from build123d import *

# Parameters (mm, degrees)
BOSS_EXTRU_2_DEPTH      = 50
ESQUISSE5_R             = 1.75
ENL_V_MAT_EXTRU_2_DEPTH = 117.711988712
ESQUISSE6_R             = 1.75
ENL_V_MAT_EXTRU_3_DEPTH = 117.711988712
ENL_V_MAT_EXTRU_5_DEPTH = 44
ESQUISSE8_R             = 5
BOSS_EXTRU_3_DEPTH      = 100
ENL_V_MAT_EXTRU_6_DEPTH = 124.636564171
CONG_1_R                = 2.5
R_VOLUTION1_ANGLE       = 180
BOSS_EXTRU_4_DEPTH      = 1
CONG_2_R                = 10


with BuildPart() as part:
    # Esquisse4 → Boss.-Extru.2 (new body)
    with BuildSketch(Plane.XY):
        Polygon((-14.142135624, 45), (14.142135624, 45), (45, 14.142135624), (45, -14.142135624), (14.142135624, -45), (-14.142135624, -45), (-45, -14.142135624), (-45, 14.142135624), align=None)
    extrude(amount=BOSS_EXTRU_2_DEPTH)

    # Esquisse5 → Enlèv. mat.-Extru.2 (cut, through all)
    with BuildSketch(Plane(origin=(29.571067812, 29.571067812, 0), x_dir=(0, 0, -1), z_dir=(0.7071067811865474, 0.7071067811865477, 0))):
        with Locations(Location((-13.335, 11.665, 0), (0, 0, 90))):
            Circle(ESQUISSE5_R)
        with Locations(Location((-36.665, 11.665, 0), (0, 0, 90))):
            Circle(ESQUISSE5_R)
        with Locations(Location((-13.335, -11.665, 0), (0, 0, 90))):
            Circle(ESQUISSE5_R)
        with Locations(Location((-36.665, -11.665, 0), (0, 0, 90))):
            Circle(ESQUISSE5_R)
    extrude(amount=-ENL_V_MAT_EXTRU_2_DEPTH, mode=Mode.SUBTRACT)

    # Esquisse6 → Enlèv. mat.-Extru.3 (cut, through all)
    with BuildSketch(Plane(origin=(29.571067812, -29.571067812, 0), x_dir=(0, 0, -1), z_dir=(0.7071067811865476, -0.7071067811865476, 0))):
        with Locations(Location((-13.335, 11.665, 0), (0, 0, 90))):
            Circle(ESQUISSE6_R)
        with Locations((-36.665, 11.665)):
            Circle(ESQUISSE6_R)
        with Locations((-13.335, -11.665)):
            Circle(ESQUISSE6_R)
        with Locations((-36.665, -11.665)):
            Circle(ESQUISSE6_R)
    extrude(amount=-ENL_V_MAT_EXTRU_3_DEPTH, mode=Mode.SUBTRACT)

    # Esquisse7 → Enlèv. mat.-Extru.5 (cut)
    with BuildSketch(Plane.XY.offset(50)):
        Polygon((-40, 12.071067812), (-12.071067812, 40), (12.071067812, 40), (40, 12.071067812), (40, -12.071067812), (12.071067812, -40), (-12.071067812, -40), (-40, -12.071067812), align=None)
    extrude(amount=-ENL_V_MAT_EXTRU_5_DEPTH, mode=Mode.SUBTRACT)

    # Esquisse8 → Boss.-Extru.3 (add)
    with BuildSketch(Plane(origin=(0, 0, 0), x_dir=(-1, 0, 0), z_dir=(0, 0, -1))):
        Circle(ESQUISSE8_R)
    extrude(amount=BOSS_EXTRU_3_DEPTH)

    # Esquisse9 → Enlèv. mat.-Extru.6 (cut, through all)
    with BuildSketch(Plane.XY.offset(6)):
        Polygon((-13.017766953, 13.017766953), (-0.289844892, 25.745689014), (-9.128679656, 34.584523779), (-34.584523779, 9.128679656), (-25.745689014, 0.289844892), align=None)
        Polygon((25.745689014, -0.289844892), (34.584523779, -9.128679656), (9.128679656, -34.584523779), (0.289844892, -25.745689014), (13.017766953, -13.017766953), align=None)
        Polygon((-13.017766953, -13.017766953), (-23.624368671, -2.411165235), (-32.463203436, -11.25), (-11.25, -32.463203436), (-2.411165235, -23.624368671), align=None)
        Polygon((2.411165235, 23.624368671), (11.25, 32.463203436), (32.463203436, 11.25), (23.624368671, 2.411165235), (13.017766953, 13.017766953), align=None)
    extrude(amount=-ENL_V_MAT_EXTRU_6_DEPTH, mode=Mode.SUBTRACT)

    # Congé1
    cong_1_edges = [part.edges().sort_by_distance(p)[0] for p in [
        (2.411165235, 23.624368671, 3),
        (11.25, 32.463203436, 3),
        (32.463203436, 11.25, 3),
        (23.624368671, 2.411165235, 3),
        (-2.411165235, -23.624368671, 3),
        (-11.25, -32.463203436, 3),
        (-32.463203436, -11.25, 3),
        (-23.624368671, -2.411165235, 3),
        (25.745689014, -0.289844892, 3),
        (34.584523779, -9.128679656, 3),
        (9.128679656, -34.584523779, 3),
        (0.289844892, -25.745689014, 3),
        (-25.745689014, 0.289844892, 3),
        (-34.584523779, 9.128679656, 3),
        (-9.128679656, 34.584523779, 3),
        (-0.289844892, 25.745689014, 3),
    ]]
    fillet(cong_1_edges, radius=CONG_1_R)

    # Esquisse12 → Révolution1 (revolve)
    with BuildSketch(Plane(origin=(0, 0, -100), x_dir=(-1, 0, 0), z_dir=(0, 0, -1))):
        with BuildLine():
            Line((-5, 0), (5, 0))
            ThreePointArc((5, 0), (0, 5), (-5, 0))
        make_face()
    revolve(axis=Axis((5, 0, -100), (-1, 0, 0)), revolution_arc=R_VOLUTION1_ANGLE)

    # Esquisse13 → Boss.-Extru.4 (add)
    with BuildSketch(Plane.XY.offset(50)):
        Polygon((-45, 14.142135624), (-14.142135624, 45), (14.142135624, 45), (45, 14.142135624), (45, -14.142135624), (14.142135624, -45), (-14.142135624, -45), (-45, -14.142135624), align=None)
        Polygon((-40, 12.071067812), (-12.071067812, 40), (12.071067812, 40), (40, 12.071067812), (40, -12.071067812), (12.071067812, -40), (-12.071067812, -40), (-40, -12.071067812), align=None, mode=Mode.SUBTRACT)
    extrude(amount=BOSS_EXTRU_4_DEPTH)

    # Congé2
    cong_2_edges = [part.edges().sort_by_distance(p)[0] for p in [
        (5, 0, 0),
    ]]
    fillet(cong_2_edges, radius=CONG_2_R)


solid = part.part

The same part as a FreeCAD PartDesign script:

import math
import FreeCAD as App
import Part
import Sketcher
from FreeCAD import Vector
Q = App.Units.Quantity


def edges_at(feature, points):
    """Names of the edges that pass closest to the given points."""
    edges = feature.Shape.Edges
    near = lambda p: min(range(len(edges)), key=lambda i: edges[i].distToShape(Part.Vertex(*p))[0])
    return sorted({f"Edge{near(p) + 1}" for p in points})


def add_polygon(sketch, points):
    """Adds a closed chain of lines whose ends are joined by coincident constraints."""
    first, n = sketch.GeometryCount, len(points)
    for a, b in zip(points, points[1:] + points[:1]):
        sketch.addGeometry(Part.LineSegment(App.Vector(*a, 0), App.Vector(*b, 0)), False)
    for i in range(n):
        sketch.addConstraint(Sketcher.Constraint("Coincident", first + i, 2, first + (i + 1) % n, 1))

doc = App.newDocument("Part")
params = doc.addObject("Spreadsheet::Sheet", "Params")
for row, (alias, value) in enumerate([
    ("pad1_length", "50 mm"),
    ("sketch2_diameter", "3.5 mm"),
    ("sketch3_diameter", "3.5 mm"),
    ("pocket3_length", "44 mm"),
    ("sketch5_diameter", "10 mm"),
    ("pad2_length", "100 mm"),
    ("sketch6_length", "36 mm"),
    ("sketch6_length2", "30 mm"),
    ("sketch6_length3", "12.5 mm"),
    ("fillet_radius", "2.5 mm"),
    ("sketch7_radius", "5 mm"),
    ("revolution_angle", "180 deg"),
    ("pad3_length", "1 mm"),
    ("fillet2_radius", "10 mm"),
], start=1):
    params.set(f"A{row}", alias)
    params.set(f"B{row}", "=" + value)
    params.setAlias(f"B{row}", alias)

body = doc.addObject("PartDesign::Body", "Body")

sketch1 = doc.addObject("Sketcher::SketchObject", "Sketch")
body.addObject(sketch1)
sketch1.AttachmentSupport = (doc.XY_Plane, [""])
sketch1.MapMode = "FlatFace"
add_polygon(sketch1, [(14, 45), (-14, 45), (-45, 14), (-45, -14), (-14, -45), (14, -45), (45, -14), (45, 14)])
sketch1.addConstraint(Sketcher.Constraint("Horizontal", 0))
sketch1.addConstraint(Sketcher.Constraint("Vertical", 2))
sketch1.addConstraint(Sketcher.Constraint("Horizontal", 4))
sketch1.addConstraint(Sketcher.Constraint("Vertical", 6))
sketch1.addConstraint(Sketcher.Constraint("Symmetric", 0, 2, 4, 2, -1, 1))
sketch1.addConstraint(Sketcher.Constraint("Symmetric", 1, 2, 5, 2, -1, 1))
sketch1.addConstraint(Sketcher.Constraint("Perpendicular", 1, 3))
sketch1.addConstraint(Sketcher.Constraint("Perpendicular", 5, 7))
sketch1.addConstraint(Sketcher.Constraint("Horizontal", 2, 2, 5, 2))
sketch1.addConstraint(Sketcher.Constraint("Horizontal", 1, 2, 6, 2))
sketch1.addConstraint(Sketcher.Constraint("Vertical", 0, 2, 3, 2))
sketch1.addConstraint(Sketcher.Constraint("Equal", 4, 2))
sketch1.addConstraint(Sketcher.Constraint("DistanceY", -1, 1, 0, 2, Q("45 mm")))
sketch1.addConstraint(Sketcher.Constraint("DistanceX", 0, 2, 0, 1, Q("28.284271 mm")))
pad1 = doc.addObject("PartDesign::Pad", "Pad")
body.addObject(pad1)
pad1.Profile = sketch1
pad1.setExpression("Length", "Params.pad1_length")

sketch2 = doc.addObject("Sketcher::SketchObject", "Sketch001")
body.addObject(sketch2)
sketch2.Placement = App.Placement(Vector(29.571068, 29.571068, 0), App.Rotation(Vector(0, 0, -1), Vector(-0.707106781, 0.707106781, 0), Vector(0.707106781, 0.707106781, 0), "ZXY"))
sketch2.addGeometry(Part.Circle(Vector(-13.3, 11.7, 0), Vector(0, 0, 1), 1.8), False)
sketch2.addGeometry(Part.Circle(Vector(-36.7, 11.7, 0), Vector(0, 0, 1), 1.8), False)
sketch2.addGeometry(Part.Circle(Vector(-13.3, -11.7, 0), Vector(0, 0, 1), 1.8), False)
sketch2.addGeometry(Part.Circle(Vector(-36.7, -11.7, 0), Vector(0, 0, 1), 1.8), False)
sketch2.addConstraint(Sketcher.Constraint("Equal", 0, 1))
sketch2.addConstraint(Sketcher.Constraint("Equal", 1, 2))
sketch2.addConstraint(Sketcher.Constraint("Equal", 2, 3))
sketch2.addConstraint(Sketcher.Constraint("Symmetric", 0, 3, 2, 3, -1))
sketch2.addConstraint(Sketcher.Constraint("Symmetric", 1, 3, 3, 3, -1))
sketch2.addConstraint(Sketcher.Constraint("Horizontal", 0, 3, 1, 3))
sketch2.addConstraint(Sketcher.Constraint("Diameter", 0, Q("3.5 mm")))
sketch2.addConstraint(Sketcher.Constraint("DistanceX", 1, 3, 0, 3, Q("23.33 mm")))
sketch2.addConstraint(Sketcher.Constraint("DistanceY", 2, 3, 0, 3, Q("23.33 mm")))
sketch2.addConstraint(Sketcher.Constraint("DistanceX", 0, 3, -1, 1, Q("13.335 mm")))
sketch2.setExpression("Constraints[6]", "Params.sketch2_diameter")
pocket1 = doc.addObject("PartDesign::Pocket", "Pocket")
body.addObject(pocket1)
pocket1.Profile = sketch2
pocket1.Type = "ThroughAll"

sketch3 = doc.addObject("Sketcher::SketchObject", "Sketch002")
body.addObject(sketch3)
sketch3.Placement = App.Placement(Vector(29.571068, -29.571068, 0), App.Rotation(Vector(0, 0, -1), Vector(0.707106781, 0.707106781, 0), Vector(0.707106781, -0.707106781, 0), "ZXY"))
sketch3.addGeometry(Part.Circle(Vector(-13.3, 11.7, 0), Vector(0, 0, 1), 1.8), False)
sketch3.addGeometry(Part.Circle(Vector(-36.7, 11.7, 0), Vector(0, 0, 1), 1.8), False)
sketch3.addGeometry(Part.Circle(Vector(-13.3, -11.7, 0), Vector(0, 0, 1), 1.8), False)
sketch3.addGeometry(Part.Circle(Vector(-36.7, -11.7, 0), Vector(0, 0, 1), 1.8), False)
sketch3.addConstraint(Sketcher.Constraint("Equal", 0, 1))
sketch3.addConstraint(Sketcher.Constraint("Equal", 1, 2))
sketch3.addConstraint(Sketcher.Constraint("Equal", 2, 3))
sketch3.addConstraint(Sketcher.Constraint("Symmetric", 0, 3, 2, 3, -1))
sketch3.addConstraint(Sketcher.Constraint("Symmetric", 1, 3, 3, 3, -1))
sketch3.addConstraint(Sketcher.Constraint("Horizontal", 0, 3, 1, 3))
sketch3.addConstraint(Sketcher.Constraint("Diameter", 0, Q("3.5 mm")))
sketch3.addConstraint(Sketcher.Constraint("DistanceX", 1, 3, 0, 3, Q("23.33 mm")))
sketch3.addConstraint(Sketcher.Constraint("DistanceY", 2, 3, 0, 3, Q("23.33 mm")))
sketch3.addConstraint(Sketcher.Constraint("DistanceX", 0, 3, -1, 1, Q("13.335 mm")))
sketch3.setExpression("Constraints[6]", "Params.sketch3_diameter")
pocket2 = doc.addObject("PartDesign::Pocket", "Pocket001")
body.addObject(pocket2)
pocket2.Profile = sketch3
pocket2.Type = "ThroughAll"

sketch4 = doc.addObject("Sketcher::SketchObject", "Sketch003")
body.addObject(sketch4)
sketch4.AttachmentSupport = (doc.XY_Plane, [""])
sketch4.MapMode = "FlatFace"
sketch4.AttachmentOffset = App.Placement(Vector(0, 0, 50), App.Rotation())
add_polygon(sketch4, [(-12, 40), (-40, 12), (-40, -12), (-12, -40), (12, -40), (40, -12), (40, 12), (12, 40)])
sketch4.addConstraint(Sketcher.Constraint("Vertical", 1))
sketch4.addConstraint(Sketcher.Constraint("Horizontal", 3))
sketch4.addConstraint(Sketcher.Constraint("Vertical", 5))
sketch4.addConstraint(Sketcher.Constraint("Horizontal", 7))
sketch4.addConstraint(Sketcher.Constraint("Symmetric", 0, 2, 4, 2, -1, 1))
sketch4.addConstraint(Sketcher.Constraint("Symmetric", 2, 2, 6, 2, -1, 1))
sketch4.addConstraint(Sketcher.Constraint("Perpendicular", 0, 2))
sketch4.addConstraint(Sketcher.Constraint("Perpendicular", 2, 4))
sketch4.addConstraint(Sketcher.Constraint("Perpendicular", 4, 6))
sketch4.addConstraint(Sketcher.Constraint("Horizontal", 1, 2, 4, 2))
sketch4.addConstraint(Sketcher.Constraint("Vertical", 3, 2, 6, 2))
sketch4.addConstraint(Sketcher.Constraint("Equal", 7, 1))
sketch4.addConstraint(Sketcher.Constraint("DistanceX", 0, 2, -1, 1, Q("40 mm")))
sketch4.addConstraint(Sketcher.Constraint("DistanceX", 3, 1, 3, 2, Q("24.142136 mm")))
pocket3 = doc.addObject("PartDesign::Pocket", "Pocket002")
body.addObject(pocket3)
pocket3.Profile = sketch4
pocket3.setExpression("Length", "Params.pocket3_length")

sketch5 = doc.addObject("Sketcher::SketchObject", "Sketch004")
body.addObject(sketch5)
sketch5.AttachmentSupport = (doc.XY_Plane, [""])
sketch5.MapMode = "FlatFace"
sketch5.addGeometry(Part.Circle(Vector(0, 0, 0), Vector(0, 0, 1), 5), False)
sketch5.addConstraint(Sketcher.Constraint("Coincident", 0, 3, -1, 1))
sketch5.addConstraint(Sketcher.Constraint("Diameter", 0, Q("10 mm")))
sketch5.setExpression("Constraints[1]", "Params.sketch5_diameter")
pad2 = doc.addObject("PartDesign::Pad", "Pad001")
body.addObject(pad2)
pad2.Profile = sketch5
pad2.setExpression("Length", "Params.pad2_length")
pad2.Reversed = True

sketch6 = doc.addObject("Sketcher::SketchObject", "Sketch005")
body.addObject(sketch6)
sketch6.AttachmentSupport = (doc.XY_Plane, [""])
sketch6.MapMode = "FlatFace"
sketch6.AttachmentOffset = App.Placement(Vector(0, 0, 6), App.Rotation())
add_polygon(sketch6, [(0, 26), (-9, 35), (-35, 9), (-26, 0)])
add_polygon(sketch6, [(35, -9), (26, 0), (0, -26), (9, -35)])
add_polygon(sketch6, [(-24, -2), (-32, -11), (-11, -32), (-2, -24)])
add_polygon(sketch6, [(11, 32), (2, 24), (24, 2), (32, 11)])
sketch6.addConstraint(Sketcher.Constraint("Symmetric", 2, 2, 4, 2, -1, 1))
sketch6.addConstraint(Sketcher.Constraint("Symmetric", 3, 2, 5, 2, -1, 1))
sketch6.addConstraint(Sketcher.Constraint("Symmetric", 0, 2, 6, 2, -1, 1))
sketch6.addConstraint(Sketcher.Constraint("Symmetric", 1, 2, 7, 2, -1, 1))
sketch6.addConstraint(Sketcher.Constraint("Symmetric", 10, 2, 12, 2, -1, 1))
sketch6.addConstraint(Sketcher.Constraint("Symmetric", 11, 2, 13, 2, -1, 1))
sketch6.addConstraint(Sketcher.Constraint("Symmetric", 8, 2, 14, 2, -1, 1))
sketch6.addConstraint(Sketcher.Constraint("Symmetric", 9, 2, 15, 2, -1, 1))
sketch6.addConstraint(Sketcher.Constraint("Perpendicular", 0, 1))
sketch6.addConstraint(Sketcher.Constraint("Perpendicular", 1, 2))
sketch6.addConstraint(Sketcher.Constraint("Perpendicular", 2, 3))
sketch6.addConstraint(Sketcher.Constraint("Parallel", 7, 8))
sketch6.addConstraint(Sketcher.Constraint("Perpendicular", 8, 9))
sketch6.addConstraint(Sketcher.Constraint("Perpendicular", 9, 10))
sketch6.addConstraint(Sketcher.Constraint("Perpendicular", 10, 11))
sketch6.addConstraint(Sketcher.Constraint("Equal", 6, 8))
sketch6.addConstraint(Sketcher.Constraint("Angle", 0, Q("135 deg")))
sketch6.addConstraint(Sketcher.Constraint("Distance", 1, Q("36 mm")))
sketch6.addConstraint(Sketcher.Constraint("Distance", 9, Q("30 mm")))
sketch6.addConstraint(Sketcher.Constraint("Distance", 0, Q("12.5 mm")))
sketch6.addConstraint(Sketcher.Constraint("DistanceY", 8, 2, -1, 1, Q("11.25 mm")))
sketch6.addConstraint(Sketcher.Constraint("DistanceX", 9, 2, -1, 1, Q("11.25 mm")))
sketch6.addConstraint(Sketcher.Constraint("DistanceX", 0, 2, -1, 1, Q("9.12868 mm")))
sketch6.addConstraint(Sketcher.Constraint("DistanceY", -1, 1, 1, 2, Q("9.12868 mm")))
sketch6.setExpression("Constraints[33]", "Params.sketch6_length")
sketch6.setExpression("Constraints[34]", "Params.sketch6_length2")
sketch6.setExpression("Constraints[35]", "Params.sketch6_length3")
pocket4 = doc.addObject("PartDesign::Pocket", "Pocket003")
body.addObject(pocket4)
pocket4.Profile = sketch6
pocket4.Type = "ThroughAll"
doc.recompute()

fillet = doc.addObject("PartDesign::Fillet", "Fillet")
body.addObject(fillet)
fillet.Base = (pocket4, edges_at(pocket4, [
    (2.411, 23.624, 3),
    (11.25, 32.463, 3),
    (32.463, 11.25, 3),
    (23.624, 2.411, 3),
    (-2.411, -23.624, 3),
    (-11.25, -32.463, 3),
    (-32.463, -11.25, 3),
    (-23.624, -2.411, 3),
    (25.746, -0.29, 3),
    (34.585, -9.129, 3),
    (9.129, -34.585, 3),
    (0.29, -25.746, 3),
    (-25.746, 0.29, 3),
    (-34.585, 9.129, 3),
    (-9.129, 34.585, 3),
    (-0.29, 25.746, 3),
]))
fillet.setExpression("Radius", "Params.fillet_radius")

sketch7 = doc.addObject("Sketcher::SketchObject", "Sketch006")
body.addObject(sketch7)
sketch7.AttachmentSupport = (doc.XY_Plane, [""])
sketch7.MapMode = "FlatFace"
sketch7.AttachmentOffset = App.Placement(Vector(0, 0, -100), App.Rotation())
sketch7.addGeometry(Part.LineSegment(Vector(5, 0, 0), Vector(-5, 0, 0)), False)
sketch7.addGeometry(Part.ArcOfCircle(Part.Circle(Vector(0, 0, 0), Vector(0, 0, 1), 5), math.radians(0), math.radians(180)), False)
sketch7.addConstraint(Sketcher.Constraint("Coincident", 0, 1, 1, 1))
sketch7.addConstraint(Sketcher.Constraint("Coincident", 1, 2, 0, 2))
sketch7.addConstraint(Sketcher.Constraint("Horizontal", 0))
sketch7.addConstraint(Sketcher.Constraint("Coincident", 1, 3, -1, 1))
sketch7.addConstraint(Sketcher.Constraint("PointOnObject", 0, 1, -1))
sketch7.addConstraint(Sketcher.Constraint("Radius", 1, Q("5 mm")))
sketch7.setExpression("Constraints[5]", "Params.sketch7_radius")
revolution = doc.addObject("PartDesign::Revolution", "Revolution")
body.addObject(revolution)
revolution.Profile = sketch7
revolution.ReferenceAxis = (sketch7, ["H_Axis"])
revolution.setExpression("Angle", "Params.revolution_angle")
revolution.Reversed = True

sketch8 = doc.addObject("Sketcher::SketchObject", "Sketch007")
body.addObject(sketch8)
sketch8.AttachmentSupport = (doc.XY_Plane, [""])
sketch8.MapMode = "FlatFace"
sketch8.AttachmentOffset = App.Placement(Vector(0, 0, 50), App.Rotation())
add_polygon(sketch8, [(-14, 45), (-45, 14), (-45, -14), (-14, -45), (14, -45), (45, -14), (45, 14), (14, 45)])
add_polygon(sketch8, [(-40, 12), (-12, 40), (12, 40), (40, 12), (40, -12), (12, -40), (-12, -40), (-40, -12)])
sketch8.addConstraint(Sketcher.Constraint("Vertical", 1))
sketch8.addConstraint(Sketcher.Constraint("Horizontal", 3))
sketch8.addConstraint(Sketcher.Constraint("Vertical", 5))
sketch8.addConstraint(Sketcher.Constraint("Horizontal", 7))
sketch8.addConstraint(Sketcher.Constraint("Horizontal", 9))
sketch8.addConstraint(Sketcher.Constraint("Vertical", 11))
sketch8.addConstraint(Sketcher.Constraint("Horizontal", 13))
sketch8.addConstraint(Sketcher.Constraint("Vertical", 15))
sketch8.addConstraint(Sketcher.Constraint("Symmetric", 0, 2, 4, 2, -1, 1))
sketch8.addConstraint(Sketcher.Constraint("Symmetric", 2, 2, 6, 2, -1, 1))
sketch8.addConstraint(Sketcher.Constraint("Symmetric", 8, 2, 12, 2, -1, 1))
sketch8.addConstraint(Sketcher.Constraint("Symmetric", 10, 2, 14, 2, -1, 1))
sketch8.addConstraint(Sketcher.Constraint("Perpendicular", 0, 2))
sketch8.addConstraint(Sketcher.Constraint("Perpendicular", 2, 4))
sketch8.addConstraint(Sketcher.Constraint("Perpendicular", 4, 6))
sketch8.addConstraint(Sketcher.Constraint("Perpendicular", 6, 8))
sketch8.addConstraint(Sketcher.Constraint("Perpendicular", 8, 10))
sketch8.addConstraint(Sketcher.Constraint("Perpendicular", 10, 12))
sketch8.addConstraint(Sketcher.Constraint("Perpendicular", 12, 14))
sketch8.addConstraint(Sketcher.Constraint("Horizontal", 1, 2, 4, 2))
sketch8.addConstraint(Sketcher.Constraint("Horizontal", 11, 2, 14, 2))
sketch8.addConstraint(Sketcher.Constraint("Vertical", 3, 2, 6, 2))
sketch8.addConstraint(Sketcher.Constraint("Equal", 7, 1))
sketch8.addConstraint(Sketcher.Constraint("Equal", 13, 11))
sketch8.addConstraint(Sketcher.Constraint("DistanceX", 0, 2, -1, 1, Q("45 mm")))
sketch8.addConstraint(Sketcher.Constraint("DistanceY", -1, 1, 8, 2, Q("40 mm")))
sketch8.addConstraint(Sketcher.Constraint("DistanceX", 3, 1, 3, 2, Q("28.284271 mm")))
sketch8.addConstraint(Sketcher.Constraint("DistanceX", 9, 1, 9, 2, Q("24.142136 mm")))
pad3 = doc.addObject("PartDesign::Pad", "Pad002")
body.addObject(pad3)
pad3.Profile = sketch8
pad3.setExpression("Length", "Params.pad3_length")
doc.recompute()

fillet2 = doc.addObject("PartDesign::Fillet", "Fillet001")
body.addObject(fillet2)
fillet2.Base = (pad3, edges_at(pad3, [(5, 0, 0)]))
fillet2.setExpression("Radius", "Params.fillet2_radius")

doc.recompute()
